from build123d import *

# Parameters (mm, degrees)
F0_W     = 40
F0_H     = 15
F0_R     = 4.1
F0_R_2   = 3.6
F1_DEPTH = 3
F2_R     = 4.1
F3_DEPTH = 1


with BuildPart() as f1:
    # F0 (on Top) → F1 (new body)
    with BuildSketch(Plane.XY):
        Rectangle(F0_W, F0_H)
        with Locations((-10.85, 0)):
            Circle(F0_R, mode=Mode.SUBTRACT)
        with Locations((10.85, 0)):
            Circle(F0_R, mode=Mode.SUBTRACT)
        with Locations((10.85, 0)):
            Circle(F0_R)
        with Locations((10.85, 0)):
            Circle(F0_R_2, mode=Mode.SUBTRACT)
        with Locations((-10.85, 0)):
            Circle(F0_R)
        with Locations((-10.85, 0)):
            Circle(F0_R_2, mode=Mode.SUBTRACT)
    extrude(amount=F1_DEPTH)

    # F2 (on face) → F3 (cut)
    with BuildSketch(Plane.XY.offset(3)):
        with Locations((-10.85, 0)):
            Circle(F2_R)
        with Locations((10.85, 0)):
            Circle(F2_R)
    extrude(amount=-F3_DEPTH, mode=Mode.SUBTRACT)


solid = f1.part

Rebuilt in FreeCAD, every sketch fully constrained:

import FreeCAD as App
import Part
import Sketcher
from FreeCAD import Vector


def add_polygon(sketch, points):
    """Adds a closed chain of lines whose ends are joined by coincident constraints."""
    first, n = sketch.GeometryCount, len(points)
    for a, b in zip(points, points[1:] + points[:1]):
        sketch.addGeometry(Part.LineSegment(App.Vector(*a, 0), App.Vector(*b, 0)), False)
    for i in range(n):
        sketch.addConstraint(Sketcher.Constraint("Coincident", first + i, 2, first + (i + 1) % n, 1))

doc = App.newDocument("Part")
body = doc.addObject("PartDesign::Body", "Body")

# Sketch on XY plane
sketch1 = body.newObject("Sketcher::SketchObject", "Sketch")
sketch1.AttachmentSupport = (doc.getObject("XY_Plane"), [""])
sketch1.MapMode = "FlatFace"
add_polygon(sketch1, [(-20, 7.5), (-20, -7.5), (20, -7.5), (20, 7.5)])  # lines 0-3
sketch1.addGeometry(Part.Circle(Vector(-10.8, 0, 0), Vector(0, 0, 1), 3.6), False)  # 4
sketch1.addGeometry(Part.Circle(Vector(10.8, 0, 0), Vector(0, 0, 1), 3.6), False)  # 5
sketch1.addConstraint([
    Sketcher.Constraint("Vertical", 0),
    Sketcher.Constraint("Horizontal", 1),
    Sketcher.Constraint("Vertical", 2),
    Sketcher.Constraint("Horizontal", 3),
    Sketcher.Constraint("Equal", 4, 5),
    Sketcher.Constraint("Symmetric", 4, 3, 5, 3, -1, 1),
    Sketcher.Constraint("Symmetric", 0, 2, 2, 2, -1, 1),
    Sketcher.Constraint("PointOnObject", 4, 3, -1),
    Sketcher.Constraint("Diameter", 4, 7.2),
    Sketcher.Constraint("DistanceX", 1, 1, 1, 2, 40.0),
    Sketcher.Constraint("DistanceY", 0, 2, 0, 1, 15.0),
    Sketcher.Constraint("DistanceX", 4, 3, 5, 3, 21.7),
])
pad1 = body.newObject("PartDesign::Pad", "Pad")
pad1.Profile = sketch1
pad1.Length = 3

# Sketch on XY plane
sketch2 = body.newObject("Sketcher::SketchObject", "Sketch001")
sketch2.AttachmentSupport = (doc.getObject("XY_Plane"), [""])
sketch2.MapMode = "FlatFace"
sketch2.AttachmentOffset = App.Placement(Vector(0, 0, 3), App.Rotation())
sketch2.addGeometry([
    Part.Circle(Vector(-10.8, 0, 0), Vector(0, 0, 1), 4.1),
    Part.Circle(Vector(10.8, 0, 0), Vector(0, 0, 1), 4.1),
], False)
sketch2.addConstraint([
    Sketcher.Constraint("Equal", 0, 1),
    Sketcher.Constraint("Symmetric", 0, 3, 1, 3, -1, 1),
    Sketcher.Constraint("PointOnObject", 0, 3, -1),
    Sketcher.Constraint("Diameter", 0, 8.2),
    Sketcher.Constraint("DistanceX", 0, 3, 1, 3, 21.7),
])
pocket1 = body.newObject("PartDesign::Pocket", "Pocket")
pocket1.Profile = sketch2
pocket1.Length = 1

doc.recompute()
